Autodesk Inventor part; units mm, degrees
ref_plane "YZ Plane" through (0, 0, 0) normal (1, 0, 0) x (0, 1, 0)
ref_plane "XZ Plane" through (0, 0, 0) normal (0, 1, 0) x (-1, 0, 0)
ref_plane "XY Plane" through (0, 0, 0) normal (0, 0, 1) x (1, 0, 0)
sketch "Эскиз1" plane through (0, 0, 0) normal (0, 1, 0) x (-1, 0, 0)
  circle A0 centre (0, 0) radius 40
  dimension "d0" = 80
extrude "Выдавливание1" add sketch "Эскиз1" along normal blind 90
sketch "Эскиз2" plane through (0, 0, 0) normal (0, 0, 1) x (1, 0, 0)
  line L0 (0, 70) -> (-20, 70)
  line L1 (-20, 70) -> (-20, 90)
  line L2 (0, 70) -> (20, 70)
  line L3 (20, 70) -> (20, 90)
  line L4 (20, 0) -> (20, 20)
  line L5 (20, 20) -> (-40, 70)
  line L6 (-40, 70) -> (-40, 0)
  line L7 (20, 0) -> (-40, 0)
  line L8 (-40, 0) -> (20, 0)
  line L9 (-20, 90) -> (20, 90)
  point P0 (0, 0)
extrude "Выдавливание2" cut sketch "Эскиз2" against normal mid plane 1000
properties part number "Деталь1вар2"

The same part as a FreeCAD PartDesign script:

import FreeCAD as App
import Part
import Sketcher
from FreeCAD import Vector
Q = App.Units.Quantity


def add_polygon(sketch, points):
    """Adds a closed chain of lines whose ends are joined by coincident constraints."""
    first, n = sketch.GeometryCount, len(points)
    for a, b in zip(points, points[1:] + points[:1]):
        sketch.addGeometry(Part.LineSegment(App.Vector(*a, 0), App.Vector(*b, 0)), False)
    for i in range(n):
        sketch.addConstraint(Sketcher.Constraint("Coincident", first + i, 2, first + (i + 1) % n, 1))

doc = App.newDocument("Part")
params = doc.addObject("Spreadsheet::Sheet", "Params")
for row, (alias, value) in enumerate([
    ("sketch1_diameter", "80 mm"),
    ("pad1_length", "90 mm"),
    ("sketch2_width", "40 mm"),
    ("sketch2_width2", "60 mm"),
    ("sketch2_height", "20 mm"),
    ("sketch2_height2", "70 mm"),
    ("pocket1_length", "1000 mm"),
], start=1):
    params.set(f"A{row}", alias)
    params.set(f"B{row}", "=" + value)
    params.setAlias(f"B{row}", alias)

body = doc.addObject("PartDesign::Body", "Body")

sketch1 = doc.addObject("Sketcher::SketchObject", "Sketch")
body.addObject(sketch1)
sketch1.AttachmentSupport = (doc.XZ_Plane, [""])
sketch1.MapMode = "FlatFace"
sketch1.addGeometry(Part.Circle(Vector(0, 0, 0), Vector(0, 0, 1), 40), False)
sketch1.addConstraint([
    Sketcher.Constraint("Coincident", 0, 3, -1, 1),
    Sketcher.Constraint("Diameter", 0, Q("80 mm")),
])
sketch1.setExpression("Constraints[1]", "Params.sketch1_diameter")
pad1 = doc.addObject("PartDesign::Pad", "Pad")
body.addObject(pad1)
pad1.Profile = sketch1
pad1.setExpression("Length", "Params.pad1_length")
pad1.Reversed = True

sketch2 = doc.addObject("Sketcher::SketchObject", "Sketch001")
body.addObject(sketch2)
sketch2.AttachmentSupport = (doc.XY_Plane, [""])
sketch2.MapMode = "FlatFace"
add_polygon(sketch2, [(-20, 70), (20, 70), (20, 90), (-20, 90)])
add_polygon(sketch2, [(-40, 0), (20, 0), (20, 20), (-40, 70)])
sketch2.addConstraint([
    Sketcher.Constraint("Horizontal", 0),
    Sketcher.Constraint("Vertical", 1),
    Sketcher.Constraint("Horizontal", 2),
    Sketcher.Constraint("Vertical", 3),
    Sketcher.Constraint("Horizontal", 4),
    Sketcher.Constraint("Vertical", 5),
    Sketcher.Constraint("Vertical", 7),
    Sketcher.Constraint("PointOnObject", 4, 2, -1),
    Sketcher.Constraint("Horizontal", 3, 2, 6, 2),
    Sketcher.Constraint("Vertical", 1, 2, 4, 2),
    Sketcher.Constraint("Equal", 3, 5),
    Sketcher.Constraint("DistanceX", 0, 1, 0, 2, Q("40 mm")),
    Sketcher.Constraint("DistanceX", 4, 1, 4, 2, Q("60 mm")),
    Sketcher.Constraint("DistanceY", 1, 1, 1, 2, Q("20 mm")),
    Sketcher.Constraint("DistanceY", 7, 2, 7, 1, Q("70 mm")),
    Sketcher.Constraint("DistanceX", -1, 1, 0, 2, Q("20 mm")),
])
sketch2.setExpression("Constraints[19]", "Params.sketch2_width")
sketch2.setExpression("Constraints[20]", "Params.sketch2_width2")
sketch2.setExpression("Constraints[21]", "Params.sketch2_height")
sketch2.setExpression("Constraints[22]", "Params.sketch2_height2")
pocket1 = doc.addObject("PartDesign::Pocket", "Pocket")
body.addObject(pocket1)
pocket1.Profile = sketch2
pocket1.setExpression("Length", "Params.pocket1_length")
pocket1.Midplane = True

doc.recompute()
